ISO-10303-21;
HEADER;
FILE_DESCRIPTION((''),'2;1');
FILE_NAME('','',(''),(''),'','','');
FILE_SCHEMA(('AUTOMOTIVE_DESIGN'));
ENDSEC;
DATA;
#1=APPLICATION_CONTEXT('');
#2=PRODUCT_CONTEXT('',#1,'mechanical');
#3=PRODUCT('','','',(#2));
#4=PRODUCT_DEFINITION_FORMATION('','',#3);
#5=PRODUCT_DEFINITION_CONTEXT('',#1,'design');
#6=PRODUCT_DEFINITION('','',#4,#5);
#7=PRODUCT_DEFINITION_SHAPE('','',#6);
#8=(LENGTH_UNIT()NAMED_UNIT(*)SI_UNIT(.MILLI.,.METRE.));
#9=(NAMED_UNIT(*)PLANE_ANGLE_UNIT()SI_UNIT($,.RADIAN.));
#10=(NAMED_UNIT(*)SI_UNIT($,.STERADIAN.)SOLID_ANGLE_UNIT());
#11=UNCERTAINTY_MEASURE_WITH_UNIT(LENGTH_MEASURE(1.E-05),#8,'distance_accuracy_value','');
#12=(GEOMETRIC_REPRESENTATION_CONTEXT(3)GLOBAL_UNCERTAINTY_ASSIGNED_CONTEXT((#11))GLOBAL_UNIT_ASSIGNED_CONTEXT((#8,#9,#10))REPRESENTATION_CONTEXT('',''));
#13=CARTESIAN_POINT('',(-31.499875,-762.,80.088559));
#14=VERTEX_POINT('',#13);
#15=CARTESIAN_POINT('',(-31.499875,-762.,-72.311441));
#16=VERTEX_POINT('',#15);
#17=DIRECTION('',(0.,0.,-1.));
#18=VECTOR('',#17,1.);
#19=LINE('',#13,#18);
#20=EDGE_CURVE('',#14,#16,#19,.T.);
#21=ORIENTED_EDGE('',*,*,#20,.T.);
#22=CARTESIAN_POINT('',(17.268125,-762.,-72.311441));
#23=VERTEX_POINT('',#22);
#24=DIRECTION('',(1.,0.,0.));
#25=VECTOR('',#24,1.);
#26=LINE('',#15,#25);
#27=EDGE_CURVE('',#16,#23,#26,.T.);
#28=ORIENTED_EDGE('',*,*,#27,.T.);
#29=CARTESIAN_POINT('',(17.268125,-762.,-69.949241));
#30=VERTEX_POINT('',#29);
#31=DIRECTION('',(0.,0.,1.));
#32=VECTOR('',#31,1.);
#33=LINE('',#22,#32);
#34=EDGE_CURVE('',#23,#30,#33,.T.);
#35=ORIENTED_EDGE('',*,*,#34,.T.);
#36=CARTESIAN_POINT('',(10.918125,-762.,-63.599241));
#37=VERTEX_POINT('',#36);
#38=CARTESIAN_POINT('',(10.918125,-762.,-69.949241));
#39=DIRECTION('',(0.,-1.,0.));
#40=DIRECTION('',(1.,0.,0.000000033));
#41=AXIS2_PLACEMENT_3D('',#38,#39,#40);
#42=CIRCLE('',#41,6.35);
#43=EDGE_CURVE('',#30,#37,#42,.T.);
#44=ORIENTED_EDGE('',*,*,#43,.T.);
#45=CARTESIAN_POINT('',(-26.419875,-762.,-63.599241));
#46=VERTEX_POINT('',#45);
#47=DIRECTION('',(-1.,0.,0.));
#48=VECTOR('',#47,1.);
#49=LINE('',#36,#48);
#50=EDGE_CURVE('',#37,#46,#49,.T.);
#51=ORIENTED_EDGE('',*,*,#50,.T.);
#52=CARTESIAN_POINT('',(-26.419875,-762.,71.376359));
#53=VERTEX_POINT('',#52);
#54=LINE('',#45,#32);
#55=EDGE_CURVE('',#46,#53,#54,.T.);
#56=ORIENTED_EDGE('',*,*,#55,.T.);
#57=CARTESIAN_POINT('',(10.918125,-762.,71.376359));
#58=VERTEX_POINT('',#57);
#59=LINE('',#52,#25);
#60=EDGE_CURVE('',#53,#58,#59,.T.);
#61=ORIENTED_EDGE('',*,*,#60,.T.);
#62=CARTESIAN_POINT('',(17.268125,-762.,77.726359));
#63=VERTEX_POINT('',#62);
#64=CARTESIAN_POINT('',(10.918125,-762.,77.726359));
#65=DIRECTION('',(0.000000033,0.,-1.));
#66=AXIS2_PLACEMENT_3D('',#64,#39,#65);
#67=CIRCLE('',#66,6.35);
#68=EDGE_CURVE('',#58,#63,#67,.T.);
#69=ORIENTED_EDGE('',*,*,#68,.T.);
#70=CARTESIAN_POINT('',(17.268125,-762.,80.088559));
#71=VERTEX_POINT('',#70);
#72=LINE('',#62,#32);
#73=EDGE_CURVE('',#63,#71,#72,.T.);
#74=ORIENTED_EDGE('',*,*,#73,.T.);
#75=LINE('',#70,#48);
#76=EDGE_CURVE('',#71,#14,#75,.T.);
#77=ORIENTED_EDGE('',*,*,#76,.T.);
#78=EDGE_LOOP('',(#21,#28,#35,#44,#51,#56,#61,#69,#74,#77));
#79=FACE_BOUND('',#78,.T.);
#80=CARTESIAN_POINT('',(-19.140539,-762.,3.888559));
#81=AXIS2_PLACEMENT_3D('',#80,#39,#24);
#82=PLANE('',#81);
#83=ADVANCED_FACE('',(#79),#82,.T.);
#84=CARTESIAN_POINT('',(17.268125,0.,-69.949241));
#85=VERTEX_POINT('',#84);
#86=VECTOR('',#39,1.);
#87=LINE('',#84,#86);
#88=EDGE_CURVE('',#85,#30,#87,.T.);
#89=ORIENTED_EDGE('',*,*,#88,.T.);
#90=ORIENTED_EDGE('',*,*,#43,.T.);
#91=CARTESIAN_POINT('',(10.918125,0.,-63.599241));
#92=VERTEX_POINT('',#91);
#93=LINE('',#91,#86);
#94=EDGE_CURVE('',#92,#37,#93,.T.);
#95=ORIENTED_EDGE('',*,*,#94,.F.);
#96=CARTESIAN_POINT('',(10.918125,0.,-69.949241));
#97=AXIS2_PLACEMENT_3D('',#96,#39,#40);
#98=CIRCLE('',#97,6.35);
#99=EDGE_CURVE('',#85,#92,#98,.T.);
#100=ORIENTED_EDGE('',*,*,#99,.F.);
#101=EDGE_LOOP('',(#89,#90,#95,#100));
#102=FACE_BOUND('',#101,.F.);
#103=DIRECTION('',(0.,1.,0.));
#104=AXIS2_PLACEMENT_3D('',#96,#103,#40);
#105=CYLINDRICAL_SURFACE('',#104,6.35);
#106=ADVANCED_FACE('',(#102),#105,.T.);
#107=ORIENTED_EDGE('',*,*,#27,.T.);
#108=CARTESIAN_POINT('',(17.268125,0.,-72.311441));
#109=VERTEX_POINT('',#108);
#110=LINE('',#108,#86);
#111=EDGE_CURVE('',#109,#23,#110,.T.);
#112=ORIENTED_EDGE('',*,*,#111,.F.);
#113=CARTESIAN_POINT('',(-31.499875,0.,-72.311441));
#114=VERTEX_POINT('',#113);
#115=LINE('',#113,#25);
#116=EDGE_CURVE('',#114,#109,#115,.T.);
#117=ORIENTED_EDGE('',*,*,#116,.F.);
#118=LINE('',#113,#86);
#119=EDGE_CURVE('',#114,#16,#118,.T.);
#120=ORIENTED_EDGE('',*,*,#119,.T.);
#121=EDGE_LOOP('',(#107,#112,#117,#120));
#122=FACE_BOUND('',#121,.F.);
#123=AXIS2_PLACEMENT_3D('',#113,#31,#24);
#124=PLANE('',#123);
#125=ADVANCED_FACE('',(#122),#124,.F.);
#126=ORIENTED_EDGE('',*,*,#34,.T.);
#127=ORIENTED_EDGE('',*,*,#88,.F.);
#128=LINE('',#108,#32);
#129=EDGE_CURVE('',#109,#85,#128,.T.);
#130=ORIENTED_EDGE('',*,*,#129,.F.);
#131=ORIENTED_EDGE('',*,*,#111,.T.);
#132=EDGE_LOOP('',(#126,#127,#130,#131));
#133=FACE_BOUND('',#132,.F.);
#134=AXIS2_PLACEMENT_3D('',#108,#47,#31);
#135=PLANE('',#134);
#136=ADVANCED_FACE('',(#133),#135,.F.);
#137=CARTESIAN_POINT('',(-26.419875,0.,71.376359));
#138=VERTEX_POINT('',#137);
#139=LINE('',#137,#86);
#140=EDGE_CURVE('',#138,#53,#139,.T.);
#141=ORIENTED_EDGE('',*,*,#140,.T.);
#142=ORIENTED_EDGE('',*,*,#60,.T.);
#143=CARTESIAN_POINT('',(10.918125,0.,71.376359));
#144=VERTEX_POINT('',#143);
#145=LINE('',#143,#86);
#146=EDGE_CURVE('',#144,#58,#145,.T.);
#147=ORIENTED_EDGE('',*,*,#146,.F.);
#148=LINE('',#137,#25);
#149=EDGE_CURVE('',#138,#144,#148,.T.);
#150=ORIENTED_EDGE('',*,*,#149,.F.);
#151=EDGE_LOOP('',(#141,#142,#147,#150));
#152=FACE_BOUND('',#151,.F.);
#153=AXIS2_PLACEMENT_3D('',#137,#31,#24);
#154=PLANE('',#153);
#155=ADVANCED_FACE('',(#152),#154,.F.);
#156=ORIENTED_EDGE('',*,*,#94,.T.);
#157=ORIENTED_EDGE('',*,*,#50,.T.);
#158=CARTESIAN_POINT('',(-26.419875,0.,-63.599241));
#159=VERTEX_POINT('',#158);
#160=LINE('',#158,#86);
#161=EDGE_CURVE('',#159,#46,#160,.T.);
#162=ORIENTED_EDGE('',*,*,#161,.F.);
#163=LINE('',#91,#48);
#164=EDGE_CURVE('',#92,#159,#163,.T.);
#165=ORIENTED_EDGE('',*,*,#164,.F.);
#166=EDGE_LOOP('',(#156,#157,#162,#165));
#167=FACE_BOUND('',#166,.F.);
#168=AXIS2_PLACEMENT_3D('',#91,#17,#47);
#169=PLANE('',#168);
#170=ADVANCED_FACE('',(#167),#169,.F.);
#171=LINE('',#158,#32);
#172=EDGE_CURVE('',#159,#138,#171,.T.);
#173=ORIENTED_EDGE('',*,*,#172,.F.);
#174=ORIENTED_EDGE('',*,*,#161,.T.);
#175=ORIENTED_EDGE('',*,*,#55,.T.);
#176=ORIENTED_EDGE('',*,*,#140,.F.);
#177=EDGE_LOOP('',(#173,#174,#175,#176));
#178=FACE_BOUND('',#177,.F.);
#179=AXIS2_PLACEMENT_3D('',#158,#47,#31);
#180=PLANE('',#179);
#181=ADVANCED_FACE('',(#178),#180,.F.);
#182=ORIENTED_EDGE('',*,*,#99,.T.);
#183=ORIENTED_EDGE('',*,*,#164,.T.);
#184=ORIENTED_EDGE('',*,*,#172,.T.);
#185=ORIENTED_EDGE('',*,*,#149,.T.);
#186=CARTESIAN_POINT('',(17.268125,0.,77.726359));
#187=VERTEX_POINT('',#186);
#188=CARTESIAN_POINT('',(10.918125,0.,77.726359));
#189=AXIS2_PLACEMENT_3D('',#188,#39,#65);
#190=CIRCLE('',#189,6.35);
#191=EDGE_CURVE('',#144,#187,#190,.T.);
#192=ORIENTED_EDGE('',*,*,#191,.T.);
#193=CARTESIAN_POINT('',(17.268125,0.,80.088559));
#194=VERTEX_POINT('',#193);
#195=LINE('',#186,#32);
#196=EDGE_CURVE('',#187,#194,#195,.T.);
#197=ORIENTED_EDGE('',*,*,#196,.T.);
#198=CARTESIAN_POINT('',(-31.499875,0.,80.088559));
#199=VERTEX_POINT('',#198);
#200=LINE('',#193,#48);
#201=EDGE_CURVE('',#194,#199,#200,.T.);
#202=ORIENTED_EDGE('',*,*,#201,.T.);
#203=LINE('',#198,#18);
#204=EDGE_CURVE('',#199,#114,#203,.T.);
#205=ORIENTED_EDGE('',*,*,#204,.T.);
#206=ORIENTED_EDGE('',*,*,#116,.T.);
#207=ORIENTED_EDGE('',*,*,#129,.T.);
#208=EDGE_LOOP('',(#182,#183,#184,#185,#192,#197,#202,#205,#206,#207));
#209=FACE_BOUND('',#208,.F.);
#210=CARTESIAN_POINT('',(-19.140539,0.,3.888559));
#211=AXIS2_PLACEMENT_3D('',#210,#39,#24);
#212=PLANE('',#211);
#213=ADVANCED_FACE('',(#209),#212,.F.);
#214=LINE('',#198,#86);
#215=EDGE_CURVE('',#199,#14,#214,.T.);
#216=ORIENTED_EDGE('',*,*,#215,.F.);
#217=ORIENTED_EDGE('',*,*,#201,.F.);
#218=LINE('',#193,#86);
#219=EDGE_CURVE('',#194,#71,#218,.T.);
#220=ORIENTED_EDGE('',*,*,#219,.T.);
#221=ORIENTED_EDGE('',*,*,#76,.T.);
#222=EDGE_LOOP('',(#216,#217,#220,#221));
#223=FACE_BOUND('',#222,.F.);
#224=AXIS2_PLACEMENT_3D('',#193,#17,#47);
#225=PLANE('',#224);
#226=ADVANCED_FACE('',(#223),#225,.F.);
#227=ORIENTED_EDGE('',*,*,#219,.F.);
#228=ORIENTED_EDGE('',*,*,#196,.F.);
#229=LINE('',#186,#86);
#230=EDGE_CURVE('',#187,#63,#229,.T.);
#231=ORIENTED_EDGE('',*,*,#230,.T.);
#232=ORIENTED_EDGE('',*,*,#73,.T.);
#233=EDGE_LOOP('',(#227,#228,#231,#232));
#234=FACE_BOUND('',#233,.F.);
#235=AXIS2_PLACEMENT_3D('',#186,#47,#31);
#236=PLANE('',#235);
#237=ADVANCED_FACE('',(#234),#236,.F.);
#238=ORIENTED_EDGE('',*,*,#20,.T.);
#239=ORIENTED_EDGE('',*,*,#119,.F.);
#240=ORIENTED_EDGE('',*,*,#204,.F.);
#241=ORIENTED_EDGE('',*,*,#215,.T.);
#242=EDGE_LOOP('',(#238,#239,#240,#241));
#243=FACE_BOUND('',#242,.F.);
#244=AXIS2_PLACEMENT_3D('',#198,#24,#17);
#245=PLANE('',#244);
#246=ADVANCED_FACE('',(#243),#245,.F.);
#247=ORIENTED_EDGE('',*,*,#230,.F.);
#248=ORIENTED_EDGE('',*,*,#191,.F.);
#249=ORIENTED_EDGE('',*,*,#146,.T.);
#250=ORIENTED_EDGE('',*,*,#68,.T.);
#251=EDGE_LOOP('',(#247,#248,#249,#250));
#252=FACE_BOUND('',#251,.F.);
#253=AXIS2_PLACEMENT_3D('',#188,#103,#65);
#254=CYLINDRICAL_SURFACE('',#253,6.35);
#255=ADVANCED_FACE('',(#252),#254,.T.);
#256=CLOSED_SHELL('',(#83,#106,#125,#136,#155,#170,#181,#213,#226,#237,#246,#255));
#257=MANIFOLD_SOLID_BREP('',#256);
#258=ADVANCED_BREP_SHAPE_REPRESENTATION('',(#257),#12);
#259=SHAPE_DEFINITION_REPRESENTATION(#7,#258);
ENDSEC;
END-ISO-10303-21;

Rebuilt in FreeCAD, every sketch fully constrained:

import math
import FreeCAD as App
import Part
import Sketcher
from FreeCAD import Vector
Q = App.Units.Quantity

doc = App.newDocument("Part")
body = doc.addObject("PartDesign::Body", "Body")

# Sketch on XZ plane
sketch1 = body.newObject("Sketcher::SketchObject", "Sketch")
sketch1.AttachmentSupport = (doc.getObject("XZ_Plane"), [""])
sketch1.MapMode = "FlatFace"
sketch1.addGeometry([
    Part.LineSegment(Vector(-31.5, 80.1, 0), Vector(-31.5, -72.3, 0)),  # 0
    Part.LineSegment(Vector(-31.5, -72.3, 0), Vector(17.3, -72.3, 0)),  # 1
    Part.LineSegment(Vector(17.3, -72.3, 0), Vector(17.3, -69.9, 0)),  # 2
    Part.ArcOfCircle(Part.Circle(Vector(10.9, -69.9, 0), Vector(0, 0, 1), 6.4), math.radians(0), math.radians(90)),  # 3
    Part.LineSegment(Vector(10.9, -63.6, 0), Vector(-26.4, -63.6, 0)),  # 4
    Part.LineSegment(Vector(-26.4, -63.6, 0), Vector(-26.4, 71.4, 0)),  # 5
    Part.LineSegment(Vector(-26.4, 71.4, 0), Vector(10.9, 71.4, 0)),  # 6
    Part.ArcOfCircle(Part.Circle(Vector(10.9, 77.7, 0), Vector(0, 0, 1), 6.4), math.radians(-90), math.radians(0)),  # 7
    Part.LineSegment(Vector(17.3, 77.7, 0), Vector(17.3, 80.1, 0)),  # 8
    Part.LineSegment(Vector(17.3, 80.1, 0), Vector(-31.5, 80.1, 0)),  # 9
], False)
sketch1.addConstraint([
    Sketcher.Constraint("Coincident", 0, 2, 1, 1),
    Sketcher.Constraint("Coincident", 1, 2, 2, 1),
    Sketcher.Constraint("Tangent", 2, 2, 3, 1),
    Sketcher.Constraint("Tangent", 3, 2, 4, 1),
    Sketcher.Constraint("Coincident", 4, 2, 5, 1),
    Sketcher.Constraint("Coincident", 5, 2, 6, 1),
    Sketcher.Constraint("Tangent", 6, 2, 7, 1),
    Sketcher.Constraint("Tangent", 7, 2, 8, 1),
    Sketcher.Constraint("Coincident", 8, 2, 9, 1),
    Sketcher.Constraint("Coincident", 9, 2, 0, 1),
    Sketcher.Constraint("Vertical", 0),
    Sketcher.Constraint("Horizontal", 1),
    Sketcher.Constraint("Vertical", 2),
    Sketcher.Constraint("Horizontal", 4),
    Sketcher.Constraint("Vertical", 5),
    Sketcher.Constraint("Horizontal", 6),
    Sketcher.Constraint("Vertical", 8),
    Sketcher.Constraint("Horizontal", 9),
    Sketcher.Constraint("Equal", 3, 7),
    Sketcher.Constraint("Vertical", 3, 3, 7, 3),
    Sketcher.Constraint("Equal", 2, 8),
    Sketcher.Constraint("DistanceY", 0, 2, 0, 1, Q("6 in")),
    Sketcher.Constraint("Radius", 3, Q("0.25 in")),
    Sketcher.Constraint("DistanceX", 1, 1, 1, 2, Q("1.92 in")),
    Sketcher.Constraint("DistanceX", 4, 2, 4, 1, Q("1.47 in")),
    Sketcher.Constraint("DistanceY", 2, 1, 2, 2, Q("0.093 in")),
    Sketcher.Constraint("DistanceY", 3, 3, -1, 1, Q("69.949241 mm")),
    Sketcher.Constraint("DistanceX", -1, 1, 3, 3, Q("10.918125 mm")),
])
pad1 = body.newObject("PartDesign::Pad", "Pad")
pad1.Profile = sketch1
pad1.Length = Q("30 in")

doc.recompute()
